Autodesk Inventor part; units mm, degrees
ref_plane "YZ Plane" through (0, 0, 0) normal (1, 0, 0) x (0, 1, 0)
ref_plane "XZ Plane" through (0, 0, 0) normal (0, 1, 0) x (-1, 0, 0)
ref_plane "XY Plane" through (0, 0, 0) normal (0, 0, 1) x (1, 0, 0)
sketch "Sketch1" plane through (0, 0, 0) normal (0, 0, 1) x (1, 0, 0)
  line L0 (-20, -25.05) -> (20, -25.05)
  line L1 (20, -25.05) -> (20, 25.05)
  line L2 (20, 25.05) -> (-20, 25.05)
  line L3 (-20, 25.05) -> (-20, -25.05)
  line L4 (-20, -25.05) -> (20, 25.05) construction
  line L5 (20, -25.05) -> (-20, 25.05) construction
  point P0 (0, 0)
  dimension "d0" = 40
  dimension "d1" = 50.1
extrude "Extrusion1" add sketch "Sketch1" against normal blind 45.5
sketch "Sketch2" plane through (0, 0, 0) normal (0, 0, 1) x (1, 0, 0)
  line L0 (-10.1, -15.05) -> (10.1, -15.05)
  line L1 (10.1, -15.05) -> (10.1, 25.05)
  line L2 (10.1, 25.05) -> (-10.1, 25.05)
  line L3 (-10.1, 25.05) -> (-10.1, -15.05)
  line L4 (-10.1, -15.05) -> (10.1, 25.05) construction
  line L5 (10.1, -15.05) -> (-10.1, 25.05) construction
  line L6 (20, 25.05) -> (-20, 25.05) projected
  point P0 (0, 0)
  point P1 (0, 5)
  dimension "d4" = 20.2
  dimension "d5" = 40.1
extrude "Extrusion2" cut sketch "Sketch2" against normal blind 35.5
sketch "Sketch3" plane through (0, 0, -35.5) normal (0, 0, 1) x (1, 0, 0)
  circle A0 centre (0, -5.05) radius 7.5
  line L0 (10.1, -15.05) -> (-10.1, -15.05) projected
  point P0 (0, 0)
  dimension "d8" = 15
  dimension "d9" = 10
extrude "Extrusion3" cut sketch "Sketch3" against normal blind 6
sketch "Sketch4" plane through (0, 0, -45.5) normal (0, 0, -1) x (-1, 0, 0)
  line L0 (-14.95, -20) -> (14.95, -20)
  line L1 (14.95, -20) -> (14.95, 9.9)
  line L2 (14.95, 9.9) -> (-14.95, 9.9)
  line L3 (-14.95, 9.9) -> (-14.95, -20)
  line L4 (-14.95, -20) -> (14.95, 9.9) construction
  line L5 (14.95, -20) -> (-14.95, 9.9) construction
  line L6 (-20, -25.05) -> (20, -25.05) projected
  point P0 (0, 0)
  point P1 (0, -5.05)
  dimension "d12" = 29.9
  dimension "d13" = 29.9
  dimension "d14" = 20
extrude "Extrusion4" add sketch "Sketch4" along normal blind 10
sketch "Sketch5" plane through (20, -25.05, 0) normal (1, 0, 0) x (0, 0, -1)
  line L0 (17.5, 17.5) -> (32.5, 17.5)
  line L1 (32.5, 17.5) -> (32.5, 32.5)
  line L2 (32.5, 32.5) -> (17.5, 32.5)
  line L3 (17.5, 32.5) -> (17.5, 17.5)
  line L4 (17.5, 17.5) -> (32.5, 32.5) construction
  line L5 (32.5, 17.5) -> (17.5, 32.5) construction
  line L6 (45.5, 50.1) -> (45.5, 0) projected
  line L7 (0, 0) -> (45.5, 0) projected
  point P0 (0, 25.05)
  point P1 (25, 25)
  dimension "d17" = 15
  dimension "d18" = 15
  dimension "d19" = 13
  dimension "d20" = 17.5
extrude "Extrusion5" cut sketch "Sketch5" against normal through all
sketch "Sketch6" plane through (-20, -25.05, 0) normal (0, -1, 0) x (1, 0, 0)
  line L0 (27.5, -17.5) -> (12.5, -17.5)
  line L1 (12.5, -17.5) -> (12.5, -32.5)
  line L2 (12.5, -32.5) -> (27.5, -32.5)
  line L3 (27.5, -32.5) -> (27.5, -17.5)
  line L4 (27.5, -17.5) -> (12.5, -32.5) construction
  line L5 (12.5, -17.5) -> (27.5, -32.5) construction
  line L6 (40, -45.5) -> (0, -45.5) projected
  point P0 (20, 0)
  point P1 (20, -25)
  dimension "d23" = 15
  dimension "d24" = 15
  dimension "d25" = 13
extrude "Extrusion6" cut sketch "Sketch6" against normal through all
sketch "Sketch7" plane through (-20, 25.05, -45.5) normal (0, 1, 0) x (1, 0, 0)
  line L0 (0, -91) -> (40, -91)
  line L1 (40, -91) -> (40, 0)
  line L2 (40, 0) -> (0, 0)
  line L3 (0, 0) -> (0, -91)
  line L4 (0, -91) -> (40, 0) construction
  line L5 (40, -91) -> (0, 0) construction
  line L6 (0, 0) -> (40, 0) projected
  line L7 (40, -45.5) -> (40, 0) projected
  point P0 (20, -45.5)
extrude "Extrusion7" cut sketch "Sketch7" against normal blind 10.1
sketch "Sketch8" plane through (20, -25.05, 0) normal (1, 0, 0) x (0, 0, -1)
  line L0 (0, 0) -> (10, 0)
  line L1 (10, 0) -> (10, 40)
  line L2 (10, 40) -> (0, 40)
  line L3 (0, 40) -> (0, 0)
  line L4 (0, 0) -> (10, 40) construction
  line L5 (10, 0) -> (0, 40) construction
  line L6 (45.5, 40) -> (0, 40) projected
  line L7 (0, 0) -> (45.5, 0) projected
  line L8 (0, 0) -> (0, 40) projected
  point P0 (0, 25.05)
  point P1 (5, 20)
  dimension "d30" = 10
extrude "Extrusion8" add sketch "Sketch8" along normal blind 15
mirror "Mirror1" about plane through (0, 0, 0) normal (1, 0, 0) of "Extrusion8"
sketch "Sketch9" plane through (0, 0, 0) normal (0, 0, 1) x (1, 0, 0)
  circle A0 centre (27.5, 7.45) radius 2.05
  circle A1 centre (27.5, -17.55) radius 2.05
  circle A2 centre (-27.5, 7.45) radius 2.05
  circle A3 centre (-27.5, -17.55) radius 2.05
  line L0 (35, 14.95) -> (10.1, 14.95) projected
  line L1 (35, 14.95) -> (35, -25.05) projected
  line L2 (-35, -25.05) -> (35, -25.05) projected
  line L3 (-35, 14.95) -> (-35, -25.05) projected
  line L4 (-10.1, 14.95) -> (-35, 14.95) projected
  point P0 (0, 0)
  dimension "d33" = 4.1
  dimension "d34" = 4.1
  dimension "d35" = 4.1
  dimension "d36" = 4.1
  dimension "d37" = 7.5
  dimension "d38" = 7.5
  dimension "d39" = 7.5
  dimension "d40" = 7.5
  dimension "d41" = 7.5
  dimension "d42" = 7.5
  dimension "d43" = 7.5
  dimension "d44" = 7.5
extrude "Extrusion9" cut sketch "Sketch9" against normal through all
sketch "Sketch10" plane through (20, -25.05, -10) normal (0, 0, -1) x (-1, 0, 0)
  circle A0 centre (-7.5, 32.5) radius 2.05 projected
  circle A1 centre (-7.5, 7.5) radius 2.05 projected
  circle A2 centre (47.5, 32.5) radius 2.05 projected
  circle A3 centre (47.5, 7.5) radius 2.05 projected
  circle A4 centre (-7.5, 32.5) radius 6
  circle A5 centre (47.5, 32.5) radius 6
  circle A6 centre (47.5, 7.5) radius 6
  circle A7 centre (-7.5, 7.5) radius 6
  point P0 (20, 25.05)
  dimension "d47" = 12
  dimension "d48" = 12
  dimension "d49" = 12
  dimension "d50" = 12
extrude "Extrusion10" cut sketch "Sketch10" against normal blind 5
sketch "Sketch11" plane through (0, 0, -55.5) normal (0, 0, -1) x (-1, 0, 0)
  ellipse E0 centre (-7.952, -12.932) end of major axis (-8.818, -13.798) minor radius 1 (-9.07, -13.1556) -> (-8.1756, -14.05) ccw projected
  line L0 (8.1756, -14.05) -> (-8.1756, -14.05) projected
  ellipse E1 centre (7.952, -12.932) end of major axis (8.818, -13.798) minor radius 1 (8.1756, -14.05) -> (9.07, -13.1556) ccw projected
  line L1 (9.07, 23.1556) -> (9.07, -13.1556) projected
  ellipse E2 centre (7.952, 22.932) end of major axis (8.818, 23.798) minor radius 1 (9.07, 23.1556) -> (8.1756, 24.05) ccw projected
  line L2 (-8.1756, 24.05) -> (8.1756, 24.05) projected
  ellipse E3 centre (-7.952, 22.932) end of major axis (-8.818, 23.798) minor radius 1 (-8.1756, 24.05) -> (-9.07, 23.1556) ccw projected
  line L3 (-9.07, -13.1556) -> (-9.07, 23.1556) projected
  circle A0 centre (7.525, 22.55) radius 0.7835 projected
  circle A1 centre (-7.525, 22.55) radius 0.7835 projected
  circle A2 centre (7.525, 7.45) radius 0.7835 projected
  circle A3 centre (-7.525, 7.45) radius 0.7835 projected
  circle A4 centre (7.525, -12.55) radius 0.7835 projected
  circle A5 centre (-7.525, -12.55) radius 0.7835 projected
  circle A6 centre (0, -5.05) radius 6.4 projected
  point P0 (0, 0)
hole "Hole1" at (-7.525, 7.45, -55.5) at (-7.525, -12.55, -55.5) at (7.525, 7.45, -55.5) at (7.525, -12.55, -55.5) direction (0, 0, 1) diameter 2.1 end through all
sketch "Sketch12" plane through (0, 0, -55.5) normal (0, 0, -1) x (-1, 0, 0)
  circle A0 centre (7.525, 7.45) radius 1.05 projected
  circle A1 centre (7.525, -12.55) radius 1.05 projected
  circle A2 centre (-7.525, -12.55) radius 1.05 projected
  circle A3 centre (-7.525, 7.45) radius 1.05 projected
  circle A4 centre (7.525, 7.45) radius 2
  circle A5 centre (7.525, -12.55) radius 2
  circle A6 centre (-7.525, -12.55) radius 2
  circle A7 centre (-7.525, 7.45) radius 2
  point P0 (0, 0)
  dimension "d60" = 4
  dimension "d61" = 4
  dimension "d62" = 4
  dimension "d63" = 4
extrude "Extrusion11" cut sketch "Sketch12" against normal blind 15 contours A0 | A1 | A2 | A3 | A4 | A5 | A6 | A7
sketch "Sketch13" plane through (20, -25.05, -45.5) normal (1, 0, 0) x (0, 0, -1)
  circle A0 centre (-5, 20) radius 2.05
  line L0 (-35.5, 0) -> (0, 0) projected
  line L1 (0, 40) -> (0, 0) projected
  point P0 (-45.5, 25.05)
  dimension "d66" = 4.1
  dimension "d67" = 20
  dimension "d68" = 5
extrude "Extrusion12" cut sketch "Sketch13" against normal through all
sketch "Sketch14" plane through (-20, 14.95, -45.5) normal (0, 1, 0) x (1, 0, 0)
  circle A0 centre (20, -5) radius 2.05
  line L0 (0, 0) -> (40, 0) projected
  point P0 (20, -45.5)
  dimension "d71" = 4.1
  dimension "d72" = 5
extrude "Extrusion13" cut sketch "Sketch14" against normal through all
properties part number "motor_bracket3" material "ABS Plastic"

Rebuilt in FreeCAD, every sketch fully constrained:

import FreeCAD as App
import Part
import Sketcher
from FreeCAD import Vector
Q = App.Units.Quantity

doc = App.newDocument("Part")
body = doc.addObject("PartDesign::Body", "Body")

sketch1 = body.newObject("Sketcher::SketchObject", "Sketch")
sketch1.AttachmentSupport = (doc.getObject("XY_Plane"), [""])
sketch1.MapMode = "FlatFace"
sketch1.addGeometry([
    Part.LineSegment(Vector(-20, 25, 0), Vector(-20, -25, 0)),
    Part.LineSegment(Vector(-20, -25, 0), Vector(20, -25, 0)),
    Part.LineSegment(Vector(20, -25, 0), Vector(20, 25, 0)),
    Part.LineSegment(Vector(20, 25, 0), Vector(-20, 25, 0)),
], False)
sketch1.addConstraint([
    Sketcher.Constraint("Coincident", 0, 2, 1, 1),
    Sketcher.Constraint("Coincident", 1, 2, 2, 1),
    Sketcher.Constraint("Coincident", 2, 2, 3, 1),
    Sketcher.Constraint("Coincident", 3, 2, 0, 1),
    Sketcher.Constraint("Vertical", 0),
    Sketcher.Constraint("Horizontal", 1),
    Sketcher.Constraint("Vertical", 2),
    Sketcher.Constraint("Horizontal", 3),
    Sketcher.Constraint("Symmetric", 0, 2, 2, 2, -1, 1),
    Sketcher.Constraint("DistanceX", 1, 1, 1, 2, Q("40 mm")),
    Sketcher.Constraint("DistanceY", 0, 2, 0, 1, Q("50.1 mm")),
])
pad1 = body.newObject("PartDesign::Pad", "Pad")
pad1.Profile = sketch1
pad1.Length = 45.5
pad1.Reversed = True

sketch2 = body.newObject("Sketcher::SketchObject", "Sketch001")
sketch2.AttachmentSupport = (doc.getObject("XY_Plane"), [""])
sketch2.MapMode = "FlatFace"
sketch2.addGeometry([
    Part.LineSegment(Vector(-10, 25, 0), Vector(-10, -15, 0)),
    Part.LineSegment(Vector(-10, -15, 0), Vector(10, -15, 0)),
    Part.LineSegment(Vector(10, -15, 0), Vector(10, 25, 0)),
    Part.LineSegment(Vector(10, 25, 0), Vector(-10, 25, 0)),
], False)
sketch2.addConstraint([
    Sketcher.Constraint("Coincident", 0, 2, 1, 1),
    Sketcher.Constraint("Coincident", 1, 2, 2, 1),
    Sketcher.Constraint("Coincident", 2, 2, 3, 1),
    Sketcher.Constraint("Coincident", 3, 2, 0, 1),
    Sketcher.Constraint("Vertical", 0),
    Sketcher.Constraint("Horizontal", 1),
    Sketcher.Constraint("Vertical", 2),
    Sketcher.Constraint("Horizontal", 3),
    Sketcher.Constraint("DistanceX", 1, 1, 1, 2, Q("20.2 mm")),
    Sketcher.Constraint("DistanceY", 0, 2, 0, 1, Q("40.1 mm")),
    Sketcher.Constraint("DistanceX", 0, 2, -1, 1, Q("10.1 mm")),
    Sketcher.Constraint("DistanceY", 0, 2, -1, 1, Q("15.05 mm")),
])
pocket1 = body.newObject("PartDesign::Pocket", "Pocket")
pocket1.Profile = sketch2
pocket1.Length = 35.5

sketch3 = body.newObject("Sketcher::SketchObject", "Sketch002")
sketch3.AttachmentSupport = (doc.getObject("XY_Plane"), [""])
sketch3.MapMode = "FlatFace"
sketch3.AttachmentOffset = App.Placement(Vector(0, 0, -35.5), App.Rotation())
sketch3.addGeometry(Part.Circle(Vector(0, -5, 0), Vector(0, 0, 1), 8), False)
sketch3.addConstraint([
    Sketcher.Constraint("PointOnObject", 0, 3, -2),
    Sketcher.Constraint("Diameter", 0, Q("15 mm")),
    Sketcher.Constraint("DistanceY", 0, 3, -1, 1, Q("5.05 mm")),
])
pocket2 = body.newObject("PartDesign::Pocket", "Pocket001")
pocket2.Profile = sketch3
pocket2.Length = 6

sketch4 = body.newObject("Sketcher::SketchObject", "Sketch003")
sketch4.AttachmentSupport = (doc.getObject("XY_Plane"), [""])
sketch4.MapMode = "FlatFace"
sketch4.AttachmentOffset = App.Placement(Vector(0, 0, -45.5), App.Rotation())
sketch4.addGeometry([
    Part.LineSegment(Vector(15, 10, 0), Vector(15, -20, 0)),
    Part.LineSegment(Vector(15, -20, 0), Vector(-15, -20, 0)),
    Part.LineSegment(Vector(-15, -20, 0), Vector(-15, 10, 0)),
    Part.LineSegment(Vector(-15, 10, 0), Vector(15, 10, 0)),
], False)
sketch4.addConstraint([
    Sketcher.Constraint("Coincident", 0, 2, 1, 1),
    Sketcher.Constraint("Coincident", 1, 2, 2, 1),
    Sketcher.Constraint("Coincident", 2, 2, 3, 1),
    Sketcher.Constraint("Coincident", 3, 2, 0, 1),
    Sketcher.Constraint("Vertical", 0),
    Sketcher.Constraint("Horizontal", 1),
    Sketcher.Constraint("Vertical", 2),
    Sketcher.Constraint("Horizontal", 3),
    Sketcher.Constraint("Equal", 3, 0),
    Sketcher.Constraint("DistanceX", 1, 2, 1, 1, Q("29.9 mm")),
    Sketcher.Constraint("DistanceY", 0, 2, -1, 1, Q("20 mm")),
    Sketcher.Constraint("DistanceX", -1, 1, 0, 2, Q("14.95 mm")),
])
pad2 = body.newObject("PartDesign::Pad", "Pad001")
pad2.Profile = sketch4
pad2.Length = 10
pad2.Reversed = True

sketch5 = body.newObject("Sketcher::SketchObject", "Sketch004")
sketch5.AttachmentSupport = (doc.getObject("YZ_Plane"), [""])
sketch5.MapMode = "FlatFace"
sketch5.AttachmentOffset = App.Placement(Vector(0, 0, 20), App.Rotation())
sketch5.addGeometry([
    Part.LineSegment(Vector(7, -18, 0), Vector(-8, -18, 0)),
    Part.LineSegment(Vector(-8, -18, 0), Vector(-8, -32, 0)),
    Part.LineSegment(Vector(-8, -32, 0), Vector(7, -32, 0)),
    Part.LineSegment(Vector(7, -32, 0), Vector(7, -18, 0)),
], False)
sketch5.addConstraint([
    Sketcher.Constraint("Coincident", 0, 2, 1, 1),
    Sketcher.Constraint("Coincident", 1, 2, 2, 1),
    Sketcher.Constraint("Coincident", 2, 2, 3, 1),
    Sketcher.Constraint("Coincident", 3, 2, 0, 1),
    Sketcher.Constraint("Horizontal", 0),
    Sketcher.Constraint("Vertical", 1),
    Sketcher.Constraint("Horizontal", 2),
    Sketcher.Constraint("Vertical", 3),
    Sketcher.Constraint("Equal", 2, 1),
    Sketcher.Constraint("DistanceX", 0, 2, 0, 1, Q("15 mm")),
    Sketcher.Constraint("DistanceY", 0, 2, -1, 1, Q("17.5 mm")),
    Sketcher.Constraint("DistanceX", 0, 2, -1, 1, Q("7.55 mm")),
])
pocket3 = body.newObject("PartDesign::Pocket", "Pocket002")
pocket3.Profile = sketch5
pocket3.Type = "ThroughAll"

sketch6 = body.newObject("Sketcher::SketchObject", "Sketch005")
sketch6.AttachmentSupport = (doc.getObject("XZ_Plane"), [""])
sketch6.MapMode = "FlatFace"
sketch6.AttachmentOffset = App.Placement(Vector(0, 0, 25.05), App.Rotation())
sketch6.addGeometry([
    Part.LineSegment(Vector(8, -32, 0), Vector(8, -18, 0)),
    Part.LineSegment(Vector(8, -18, 0), Vector(-8, -18, 0)),
    Part.LineSegment(Vector(-8, -18, 0), Vector(-8, -32, 0)),
    Part.LineSegment(Vector(-8, -32, 0), Vector(8, -32, 0)),
], False)
sketch6.addConstraint([
    Sketcher.Constraint("Coincident", 0, 2, 1, 1),
    Sketcher.Constraint("Coincident", 1, 2, 2, 1),
    Sketcher.Constraint("Coincident", 2, 2, 3, 1),
    Sketcher.Constraint("Coincident", 3, 2, 0, 1),
    Sketcher.Constraint("Vertical", 0),
    Sketcher.Constraint("Horizontal", 1),
    Sketcher.Constraint("Vertical", 2),
    Sketcher.Constraint("Horizontal", 3),
    Sketcher.Constraint("Equal", 3, 0),
    Sketcher.Constraint("DistanceX", 1, 2, 1, 1, Q("15 mm")),
    Sketcher.Constraint("DistanceX", -1, 1, 0, 2, Q("7.5 mm")),
    Sketcher.Constraint("DistanceY", 0, 2, -1, 1, Q("17.5 mm")),
])
pocket4 = body.newObject("PartDesign::Pocket", "Pocket003")
pocket4.Profile = sketch6
pocket4.Type = "ThroughAll"

sketch7 = body.newObject("Sketcher::SketchObject", "Sketch006")
sketch7.AttachmentSupport = (doc.getObject("XZ_Plane"), [""])
sketch7.MapMode = "FlatFace"
sketch7.AttachmentOffset = App.Placement(Vector(0, 0, -25.05), App.Rotation())
sketch7.addGeometry([
    Part.LineSegment(Vector(-20, -46, 0), Vector(-20, 46, 0)),
    Part.LineSegment(Vector(-20, 46, 0), Vector(20, 46, 0)),
    Part.LineSegment(Vector(20, 46, 0), Vector(20, -46, 0)),
    Part.LineSegment(Vector(20, -46, 0), Vector(-20, -46, 0)),
], False)
sketch7.addConstraint([
    Sketcher.Constraint("Coincident", 0, 2, 1, 1),
    Sketcher.Constraint("Coincident", 1, 2, 2, 1),
    Sketcher.Constraint("Coincident", 2, 2, 3, 1),
    Sketcher.Constraint("Coincident", 3, 2, 0, 1),
    Sketcher.Constraint("Vertical", 0),
    Sketcher.Constraint("Horizontal", 1),
    Sketcher.Constraint("Vertical", 2),
    Sketcher.Constraint("Horizontal", 3),
    Sketcher.Constraint("Symmetric", 0, 2, 2, 2, -1, 1),
    Sketcher.Constraint("DistanceX", 1, 1, 1, 2, Q("40 mm")),
    Sketcher.Constraint("DistanceY", 0, 1, 0, 2, Q("91 mm")),
])
pocket5 = body.newObject("PartDesign::Pocket", "Pocket004")
pocket5.Profile = sketch7
pocket5.Length = 10.1
pocket5.Reversed = True

sketch8 = body.newObject("Sketcher::SketchObject", "Sketch007")
sketch8.AttachmentSupport = (doc.getObject("YZ_Plane"), [""])
sketch8.MapMode = "FlatFace"
sketch8.AttachmentOffset = App.Placement(Vector(0, 0, 20), App.Rotation())
sketch8.addGeometry([
    Part.LineSegment(Vector(15, 0, 0), Vector(-25, 0, 0)),
    Part.LineSegment(Vector(-25, 0, 0), Vector(-25, -10, 0)),
    Part.LineSegment(Vector(-25, -10, 0), Vector(15, -10, 0)),
    Part.LineSegment(Vector(15, -10, 0), Vector(15, 0, 0)),
], False)
sketch8.addConstraint([
    Sketcher.Constraint("Coincident", 0, 2, 1, 1),
    Sketcher.Constraint("Coincident", 1, 2, 2, 1),
    Sketcher.Constraint("Coincident", 2, 2, 3, 1),
    Sketcher.Constraint("Coincident", 3, 2, 0, 1),
    Sketcher.Constraint("Horizontal", 0),
    Sketcher.Constraint("Vertical", 1),
    Sketcher.Constraint("Horizontal", 2),
    Sketcher.Constraint("Vertical", 3),
    Sketcher.Constraint("PointOnObject", 0, 2, -1),
    Sketcher.Constraint("DistanceY", 1, 2, 1, 1, Q("10 mm")),
    Sketcher.Constraint("DistanceX", 0, 2, 0, 1, Q("40 mm")),
    Sketcher.Constraint("DistanceX", 0, 2, -1, 1, Q("25.05 mm")),
])
pad3 = body.newObject("PartDesign::Pad", "Pad002")
pad3.Profile = sketch8
pad3.Length = 15
doc.recompute()

mirrored = body.newObject("PartDesign::Mirrored", "Mirrored")
mirrored.Originals = [pad3]
mirrored.MirrorPlane = (doc.getObject("YZ_Plane"), [""])
body.Tip = mirrored

sketch9 = body.newObject("Sketcher::SketchObject", "Sketch008")
sketch9.AttachmentSupport = (doc.getObject("XY_Plane"), [""])
sketch9.MapMode = "FlatFace"
sketch9.addGeometry([
    Part.Circle(Vector(27.5, 7.5, 0), Vector(0, 0, 1), 2),
    Part.Circle(Vector(27.5, -17.6, 0), Vector(0, 0, 1), 2),
    Part.Circle(Vector(-27.5, 7.5, 0), Vector(0, 0, 1), 2),
    Part.Circle(Vector(-27.5, -17.6, 0), Vector(0, 0, 1), 2),
], False)
sketch9.addConstraint([
    Sketcher.Constraint("Equal", 0, 1),
    Sketcher.Constraint("Equal", 1, 2),
    Sketcher.Constraint("Equal", 2, 3),
    Sketcher.Constraint("Symmetric", 0, 3, 2, 3, -2),
    Sketcher.Constraint("Symmetric", 1, 3, 3, 3, -2),
    Sketcher.Constraint("Vertical", 0, 3, 1, 3),
    Sketcher.Constraint("Diameter", 0, Q("4.1 mm")),
    Sketcher.Constraint("DistanceY", 1, 3, 0, 3, Q("25 mm")),
    Sketcher.Constraint("DistanceX", 2, 3, 0, 3, Q("55 mm")),
    Sketcher.Constraint("DistanceY", -1, 1, 0, 3, Q("7.45 mm")),
])
pocket6 = body.newObject("PartDesign::Pocket", "Pocket005")
pocket6.Profile = sketch9
pocket6.Type = "ThroughAll"

sketch10 = body.newObject("Sketcher::SketchObject", "Sketch009")
sketch10.AttachmentSupport = (doc.getObject("XY_Plane"), [""])
sketch10.MapMode = "FlatFace"
sketch10.AttachmentOffset = App.Placement(Vector(0, 0, -10), App.Rotation())
sketch10.addGeometry([
    Part.Circle(Vector(27.5, 7.5, 0), Vector(0, 0, 1), 6),
    Part.Circle(Vector(27.5, 7.5, 0), Vector(0, 0, 1), 2),
    Part.Circle(Vector(-27.5, 7.5, 0), Vector(0, 0, 1), 6),
    Part.Circle(Vector(-27.5, 7.5, 0), Vector(0, 0, 1), 2),
    Part.Circle(Vector(-27.5, -17.6, 0), Vector(0, 0, 1), 6),
    Part.Circle(Vector(-27.5, -17.6, 0), Vector(0, 0, 1), 2),
    Part.Circle(Vector(27.5, -17.6, 0), Vector(0, 0, 1), 6),
    Part.Circle(Vector(27.5, -17.6, 0), Vector(0, 0, 1), 2),
], False)
sketch10.addConstraint([
    Sketcher.Constraint("Coincident", 1, 3, 0, 3),
    Sketcher.Constraint("Coincident", 3, 3, 2, 3),
    Sketcher.Constraint("Coincident", 5, 3, 4, 3),
    Sketcher.Constraint("Coincident", 7, 3, 6, 3),
    Sketcher.Constraint("Equal", 0, 2),
    Sketcher.Constraint("Equal", 1, 3),
    Sketcher.Constraint("Equal", 2, 4),
    Sketcher.Constraint("Equal", 3, 5),
    Sketcher.Constraint("Equal", 4, 6),
    Sketcher.Constraint("Equal", 5, 7),
    Sketcher.Constraint("Symmetric", 0, 3, 2, 3, -2),
    Sketcher.Constraint("Symmetric", 4, 3, 6, 3, -2),
    Sketcher.Constraint("Vertical", 3, 3, 4, 3),
    Sketcher.Constraint("Diameter", 0, Q("12 mm")),
    Sketcher.Constraint("Diameter", 1, Q("4.1 mm")),
    Sketcher.Constraint("DistanceX", 2, 3, 0, 3, Q("55 mm")),
    Sketcher.Constraint("DistanceY", 4, 3, 2, 3, Q("25 mm")),
    Sketcher.Constraint("DistanceY", -1, 1, 0, 3, Q("7.45 mm")),
])
pocket7 = body.newObject("PartDesign::Pocket", "Pocket006")
pocket7.Profile = sketch10
pocket7.Length = 5
pocket7.Reversed = True

sketch11 = body.newObject("Sketcher::SketchObject", "Sketch010")
sketch11.AttachmentSupport = (doc.getObject("XY_Plane"), [""])
sketch11.MapMode = "FlatFace"
sketch11.AttachmentOffset = App.Placement(Vector(0, 0, -55.5), App.Rotation())
sketch11.addGeometry([
    Part.Circle(Vector(-7.5, 7.5, 0), Vector(0, 0, 1), 1.1),
    Part.Circle(Vector(-7.5, -12.6, 0), Vector(0, 0, 1), 1.1),
    Part.Circle(Vector(7.5, 7.5, 0), Vector(0, 0, 1), 1.1),
    Part.Circle(Vector(7.5, -12.6, 0), Vector(0, 0, 1), 1.1),
], False)
sketch11.addConstraint([
    Sketcher.Constraint("Equal", 0, 1),
    Sketcher.Constraint("Equal", 1, 2),
    Sketcher.Constraint("Equal", 2, 3),
    Sketcher.Constraint("Symmetric", 0, 3, 2, 3, -2),
    Sketcher.Constraint("Symmetric", 1, 3, 3, 3, -2),
    Sketcher.Constraint("Vertical", 0, 3, 1, 3),
    Sketcher.Constraint("Diameter", 0, Q("2.1 mm")),
    Sketcher.Constraint("DistanceY", 1, 3, 0, 3, Q("20 mm")),
    Sketcher.Constraint("DistanceY", -1, 1, 0, 3, Q("7.45 mm")),
    Sketcher.Constraint("DistanceX", 0, 3, 2, 3, Q("15.05 mm")),
])
doc.recompute()
hole = body.newObject("PartDesign::Hole", "Hole")
hole.Profile = sketch11
hole.ThreadType = "None"
hole.Diameter = 2.1
hole.DepthType = "ThroughAll"
hole.Reversed = True

sketch12 = body.newObject("Sketcher::SketchObject", "Sketch011")
sketch12.AttachmentSupport = (doc.getObject("XY_Plane"), [""])
sketch12.MapMode = "FlatFace"
sketch12.AttachmentOffset = App.Placement(Vector(0, 0, -55.5), App.Rotation())
sketch12.addGeometry([
    Part.Circle(Vector(-7.5, 7.5, 0), Vector(0, 0, 1), 2),
    Part.Circle(Vector(-7.5, -12.6, 0), Vector(0, 0, 1), 2),
    Part.Circle(Vector(7.5, -12.6, 0), Vector(0, 0, 1), 2),
    Part.Circle(Vector(7.5, 7.5, 0), Vector(0, 0, 1), 2),
], False)
sketch12.addConstraint([
    Sketcher.Constraint("Equal", 0, 1),
    Sketcher.Constraint("Equal", 1, 2),
    Sketcher.Constraint("Equal", 2, 3),
    Sketcher.Constraint("Symmetric", 1, 3, 2, 3, -2),
    Sketcher.Constraint("Symmetric", 0, 3, 3, 3, -2),
    Sketcher.Constraint("Vertical", 0, 3, 1, 3),
    Sketcher.Constraint("Diameter", 0, Q("4 mm")),
    Sketcher.Constraint("DistanceY", 1, 3, 0, 3, Q("20 mm")),
    Sketcher.Constraint("DistanceY", -1, 1, 0, 3, Q("7.45 mm")),
    Sketcher.Constraint("DistanceX", 1, 3, 2, 3, Q("15.05 mm")),
])
pocket8 = body.newObject("PartDesign::Pocket", "Pocket007")
pocket8.Profile = sketch12
pocket8.Length = 15
pocket8.Reversed = True

sketch13 = body.newObject("Sketcher::SketchObject", "Sketch012")
sketch13.AttachmentSupport = (doc.getObject("YZ_Plane"), [""])
sketch13.MapMode = "FlatFace"
sketch13.AttachmentOffset = App.Placement(Vector(0, 0, 20), App.Rotation())
sketch13.addGeometry(Part.Circle(Vector(-5, -40.5, 0), Vector(0, 0, 1), 2), False)
sketch13.addConstraint([
    Sketcher.Constraint("Diameter", 0, Q("4.1 mm")),
    Sketcher.Constraint("DistanceY", 0, 3, -1, 1, Q("40.5 mm")),
    Sketcher.Constraint("DistanceX", 0, 3, -1, 1, Q("5.05 mm")),
])
pocket9 = body.newObject("PartDesign::Pocket", "Pocket008")
pocket9.Profile = sketch13
pocket9.Type = "ThroughAll"

sketch14 = body.newObject("Sketcher::SketchObject", "Sketch013")
sketch14.AttachmentSupport = (doc.getObject("XZ_Plane"), [""])
sketch14.MapMode = "FlatFace"
sketch14.AttachmentOffset = App.Placement(Vector(0, 0, -14.95), App.Rotation())
sketch14.addGeometry(Part.Circle(Vector(0, -40.5, 0), Vector(0, 0, 1), 2), False)
sketch14.addConstraint([
    Sketcher.Constraint("PointOnObject", 0, 3, -2),
    Sketcher.Constraint("Diameter", 0, Q("4.1 mm")),
    Sketcher.Constraint("DistanceY", 0, 3, -1, 1, Q("40.5 mm")),
])
pocket10 = body.newObject("PartDesign::Pocket", "Pocket009")
pocket10.Profile = sketch14
pocket10.Type = "ThroughAll"
pocket10.Reversed = True

doc.recompute()
